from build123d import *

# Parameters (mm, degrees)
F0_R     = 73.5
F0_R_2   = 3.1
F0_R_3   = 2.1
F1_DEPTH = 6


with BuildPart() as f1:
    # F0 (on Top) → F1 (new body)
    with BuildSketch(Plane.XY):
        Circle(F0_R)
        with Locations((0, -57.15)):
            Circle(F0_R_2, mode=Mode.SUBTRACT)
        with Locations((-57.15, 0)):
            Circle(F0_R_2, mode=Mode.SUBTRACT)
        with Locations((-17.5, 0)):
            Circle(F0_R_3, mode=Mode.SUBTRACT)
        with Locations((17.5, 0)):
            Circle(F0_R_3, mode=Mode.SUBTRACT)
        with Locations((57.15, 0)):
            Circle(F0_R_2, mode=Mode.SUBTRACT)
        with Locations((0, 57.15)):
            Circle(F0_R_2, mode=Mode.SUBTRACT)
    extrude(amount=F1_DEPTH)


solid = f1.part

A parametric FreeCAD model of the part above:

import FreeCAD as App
import Part
import Sketcher

V = App.Vector

doc = App.newDocument("Part")
body = doc.addObject("PartDesign::Body", "Body")

sketch1 = doc.addObject("Sketcher::SketchObject", "Sketch")
body.addObject(sketch1)
sketch1.AttachmentSupport = (doc.XY_Plane, [""])
sketch1.MapMode = "FlatFace"
sketch1.addGeometry([
    Part.Circle(V(0, 0, 0), V(0, 0, 1), 73.5),
    Part.Circle(V(0, -57.1, 0), V(0, 0, 1), 3.1),
    Part.Circle(V(-57.1, 0, 0), V(0, 0, 1), 3.1),
    Part.Circle(V(-17.5, 0, 0), V(0, 0, 1), 2.1),
    Part.Circle(V(17.5, 0, 0), V(0, 0, 1), 2.1),
    Part.Circle(V(57.1, 0, 0), V(0, 0, 1), 3.1),
    Part.Circle(V(0, 57.1, 0), V(0, 0, 1), 3.1),
], False)
sketch1.addConstraint([
    Sketcher.Constraint("Coincident", 0, 3, -1, 1),
    Sketcher.Constraint("Equal", 1, 2),
    Sketcher.Constraint("Equal", 3, 4),
    Sketcher.Constraint("Equal", 2, 5),
    Sketcher.Constraint("Equal", 5, 6),
    Sketcher.Constraint("Symmetric", 3, 3, 4, 3, -1, 1),
    Sketcher.Constraint("Symmetric", 2, 3, 5, 3, -1, 1),
    Sketcher.Constraint("Symmetric", 1, 3, 6, 3, -1, 1),
    Sketcher.Constraint("PointOnObject", 1, 3, -2),
    Sketcher.Constraint("PointOnObject", 2, 3, -1),
    Sketcher.Constraint("PointOnObject", 3, 3, -1),
    Sketcher.Constraint("Diameter", 0, 147.0),
    Sketcher.Constraint("Diameter", 1, 6.2),
    Sketcher.Constraint("Diameter", 3, 4.2),
    Sketcher.Constraint("DistanceX", 3, 3, 4, 3, 35.0),
    Sketcher.Constraint("DistanceX", 2, 3, 5, 3, 114.3),
    Sketcher.Constraint("DistanceY", 1, 3, -1, 1, 57.15),
])
pad1 = doc.addObject("PartDesign::Pad", "Pad")
body.addObject(pad1)
pad1.Profile = sketch1
pad1.Length = 6

doc.recompute()
